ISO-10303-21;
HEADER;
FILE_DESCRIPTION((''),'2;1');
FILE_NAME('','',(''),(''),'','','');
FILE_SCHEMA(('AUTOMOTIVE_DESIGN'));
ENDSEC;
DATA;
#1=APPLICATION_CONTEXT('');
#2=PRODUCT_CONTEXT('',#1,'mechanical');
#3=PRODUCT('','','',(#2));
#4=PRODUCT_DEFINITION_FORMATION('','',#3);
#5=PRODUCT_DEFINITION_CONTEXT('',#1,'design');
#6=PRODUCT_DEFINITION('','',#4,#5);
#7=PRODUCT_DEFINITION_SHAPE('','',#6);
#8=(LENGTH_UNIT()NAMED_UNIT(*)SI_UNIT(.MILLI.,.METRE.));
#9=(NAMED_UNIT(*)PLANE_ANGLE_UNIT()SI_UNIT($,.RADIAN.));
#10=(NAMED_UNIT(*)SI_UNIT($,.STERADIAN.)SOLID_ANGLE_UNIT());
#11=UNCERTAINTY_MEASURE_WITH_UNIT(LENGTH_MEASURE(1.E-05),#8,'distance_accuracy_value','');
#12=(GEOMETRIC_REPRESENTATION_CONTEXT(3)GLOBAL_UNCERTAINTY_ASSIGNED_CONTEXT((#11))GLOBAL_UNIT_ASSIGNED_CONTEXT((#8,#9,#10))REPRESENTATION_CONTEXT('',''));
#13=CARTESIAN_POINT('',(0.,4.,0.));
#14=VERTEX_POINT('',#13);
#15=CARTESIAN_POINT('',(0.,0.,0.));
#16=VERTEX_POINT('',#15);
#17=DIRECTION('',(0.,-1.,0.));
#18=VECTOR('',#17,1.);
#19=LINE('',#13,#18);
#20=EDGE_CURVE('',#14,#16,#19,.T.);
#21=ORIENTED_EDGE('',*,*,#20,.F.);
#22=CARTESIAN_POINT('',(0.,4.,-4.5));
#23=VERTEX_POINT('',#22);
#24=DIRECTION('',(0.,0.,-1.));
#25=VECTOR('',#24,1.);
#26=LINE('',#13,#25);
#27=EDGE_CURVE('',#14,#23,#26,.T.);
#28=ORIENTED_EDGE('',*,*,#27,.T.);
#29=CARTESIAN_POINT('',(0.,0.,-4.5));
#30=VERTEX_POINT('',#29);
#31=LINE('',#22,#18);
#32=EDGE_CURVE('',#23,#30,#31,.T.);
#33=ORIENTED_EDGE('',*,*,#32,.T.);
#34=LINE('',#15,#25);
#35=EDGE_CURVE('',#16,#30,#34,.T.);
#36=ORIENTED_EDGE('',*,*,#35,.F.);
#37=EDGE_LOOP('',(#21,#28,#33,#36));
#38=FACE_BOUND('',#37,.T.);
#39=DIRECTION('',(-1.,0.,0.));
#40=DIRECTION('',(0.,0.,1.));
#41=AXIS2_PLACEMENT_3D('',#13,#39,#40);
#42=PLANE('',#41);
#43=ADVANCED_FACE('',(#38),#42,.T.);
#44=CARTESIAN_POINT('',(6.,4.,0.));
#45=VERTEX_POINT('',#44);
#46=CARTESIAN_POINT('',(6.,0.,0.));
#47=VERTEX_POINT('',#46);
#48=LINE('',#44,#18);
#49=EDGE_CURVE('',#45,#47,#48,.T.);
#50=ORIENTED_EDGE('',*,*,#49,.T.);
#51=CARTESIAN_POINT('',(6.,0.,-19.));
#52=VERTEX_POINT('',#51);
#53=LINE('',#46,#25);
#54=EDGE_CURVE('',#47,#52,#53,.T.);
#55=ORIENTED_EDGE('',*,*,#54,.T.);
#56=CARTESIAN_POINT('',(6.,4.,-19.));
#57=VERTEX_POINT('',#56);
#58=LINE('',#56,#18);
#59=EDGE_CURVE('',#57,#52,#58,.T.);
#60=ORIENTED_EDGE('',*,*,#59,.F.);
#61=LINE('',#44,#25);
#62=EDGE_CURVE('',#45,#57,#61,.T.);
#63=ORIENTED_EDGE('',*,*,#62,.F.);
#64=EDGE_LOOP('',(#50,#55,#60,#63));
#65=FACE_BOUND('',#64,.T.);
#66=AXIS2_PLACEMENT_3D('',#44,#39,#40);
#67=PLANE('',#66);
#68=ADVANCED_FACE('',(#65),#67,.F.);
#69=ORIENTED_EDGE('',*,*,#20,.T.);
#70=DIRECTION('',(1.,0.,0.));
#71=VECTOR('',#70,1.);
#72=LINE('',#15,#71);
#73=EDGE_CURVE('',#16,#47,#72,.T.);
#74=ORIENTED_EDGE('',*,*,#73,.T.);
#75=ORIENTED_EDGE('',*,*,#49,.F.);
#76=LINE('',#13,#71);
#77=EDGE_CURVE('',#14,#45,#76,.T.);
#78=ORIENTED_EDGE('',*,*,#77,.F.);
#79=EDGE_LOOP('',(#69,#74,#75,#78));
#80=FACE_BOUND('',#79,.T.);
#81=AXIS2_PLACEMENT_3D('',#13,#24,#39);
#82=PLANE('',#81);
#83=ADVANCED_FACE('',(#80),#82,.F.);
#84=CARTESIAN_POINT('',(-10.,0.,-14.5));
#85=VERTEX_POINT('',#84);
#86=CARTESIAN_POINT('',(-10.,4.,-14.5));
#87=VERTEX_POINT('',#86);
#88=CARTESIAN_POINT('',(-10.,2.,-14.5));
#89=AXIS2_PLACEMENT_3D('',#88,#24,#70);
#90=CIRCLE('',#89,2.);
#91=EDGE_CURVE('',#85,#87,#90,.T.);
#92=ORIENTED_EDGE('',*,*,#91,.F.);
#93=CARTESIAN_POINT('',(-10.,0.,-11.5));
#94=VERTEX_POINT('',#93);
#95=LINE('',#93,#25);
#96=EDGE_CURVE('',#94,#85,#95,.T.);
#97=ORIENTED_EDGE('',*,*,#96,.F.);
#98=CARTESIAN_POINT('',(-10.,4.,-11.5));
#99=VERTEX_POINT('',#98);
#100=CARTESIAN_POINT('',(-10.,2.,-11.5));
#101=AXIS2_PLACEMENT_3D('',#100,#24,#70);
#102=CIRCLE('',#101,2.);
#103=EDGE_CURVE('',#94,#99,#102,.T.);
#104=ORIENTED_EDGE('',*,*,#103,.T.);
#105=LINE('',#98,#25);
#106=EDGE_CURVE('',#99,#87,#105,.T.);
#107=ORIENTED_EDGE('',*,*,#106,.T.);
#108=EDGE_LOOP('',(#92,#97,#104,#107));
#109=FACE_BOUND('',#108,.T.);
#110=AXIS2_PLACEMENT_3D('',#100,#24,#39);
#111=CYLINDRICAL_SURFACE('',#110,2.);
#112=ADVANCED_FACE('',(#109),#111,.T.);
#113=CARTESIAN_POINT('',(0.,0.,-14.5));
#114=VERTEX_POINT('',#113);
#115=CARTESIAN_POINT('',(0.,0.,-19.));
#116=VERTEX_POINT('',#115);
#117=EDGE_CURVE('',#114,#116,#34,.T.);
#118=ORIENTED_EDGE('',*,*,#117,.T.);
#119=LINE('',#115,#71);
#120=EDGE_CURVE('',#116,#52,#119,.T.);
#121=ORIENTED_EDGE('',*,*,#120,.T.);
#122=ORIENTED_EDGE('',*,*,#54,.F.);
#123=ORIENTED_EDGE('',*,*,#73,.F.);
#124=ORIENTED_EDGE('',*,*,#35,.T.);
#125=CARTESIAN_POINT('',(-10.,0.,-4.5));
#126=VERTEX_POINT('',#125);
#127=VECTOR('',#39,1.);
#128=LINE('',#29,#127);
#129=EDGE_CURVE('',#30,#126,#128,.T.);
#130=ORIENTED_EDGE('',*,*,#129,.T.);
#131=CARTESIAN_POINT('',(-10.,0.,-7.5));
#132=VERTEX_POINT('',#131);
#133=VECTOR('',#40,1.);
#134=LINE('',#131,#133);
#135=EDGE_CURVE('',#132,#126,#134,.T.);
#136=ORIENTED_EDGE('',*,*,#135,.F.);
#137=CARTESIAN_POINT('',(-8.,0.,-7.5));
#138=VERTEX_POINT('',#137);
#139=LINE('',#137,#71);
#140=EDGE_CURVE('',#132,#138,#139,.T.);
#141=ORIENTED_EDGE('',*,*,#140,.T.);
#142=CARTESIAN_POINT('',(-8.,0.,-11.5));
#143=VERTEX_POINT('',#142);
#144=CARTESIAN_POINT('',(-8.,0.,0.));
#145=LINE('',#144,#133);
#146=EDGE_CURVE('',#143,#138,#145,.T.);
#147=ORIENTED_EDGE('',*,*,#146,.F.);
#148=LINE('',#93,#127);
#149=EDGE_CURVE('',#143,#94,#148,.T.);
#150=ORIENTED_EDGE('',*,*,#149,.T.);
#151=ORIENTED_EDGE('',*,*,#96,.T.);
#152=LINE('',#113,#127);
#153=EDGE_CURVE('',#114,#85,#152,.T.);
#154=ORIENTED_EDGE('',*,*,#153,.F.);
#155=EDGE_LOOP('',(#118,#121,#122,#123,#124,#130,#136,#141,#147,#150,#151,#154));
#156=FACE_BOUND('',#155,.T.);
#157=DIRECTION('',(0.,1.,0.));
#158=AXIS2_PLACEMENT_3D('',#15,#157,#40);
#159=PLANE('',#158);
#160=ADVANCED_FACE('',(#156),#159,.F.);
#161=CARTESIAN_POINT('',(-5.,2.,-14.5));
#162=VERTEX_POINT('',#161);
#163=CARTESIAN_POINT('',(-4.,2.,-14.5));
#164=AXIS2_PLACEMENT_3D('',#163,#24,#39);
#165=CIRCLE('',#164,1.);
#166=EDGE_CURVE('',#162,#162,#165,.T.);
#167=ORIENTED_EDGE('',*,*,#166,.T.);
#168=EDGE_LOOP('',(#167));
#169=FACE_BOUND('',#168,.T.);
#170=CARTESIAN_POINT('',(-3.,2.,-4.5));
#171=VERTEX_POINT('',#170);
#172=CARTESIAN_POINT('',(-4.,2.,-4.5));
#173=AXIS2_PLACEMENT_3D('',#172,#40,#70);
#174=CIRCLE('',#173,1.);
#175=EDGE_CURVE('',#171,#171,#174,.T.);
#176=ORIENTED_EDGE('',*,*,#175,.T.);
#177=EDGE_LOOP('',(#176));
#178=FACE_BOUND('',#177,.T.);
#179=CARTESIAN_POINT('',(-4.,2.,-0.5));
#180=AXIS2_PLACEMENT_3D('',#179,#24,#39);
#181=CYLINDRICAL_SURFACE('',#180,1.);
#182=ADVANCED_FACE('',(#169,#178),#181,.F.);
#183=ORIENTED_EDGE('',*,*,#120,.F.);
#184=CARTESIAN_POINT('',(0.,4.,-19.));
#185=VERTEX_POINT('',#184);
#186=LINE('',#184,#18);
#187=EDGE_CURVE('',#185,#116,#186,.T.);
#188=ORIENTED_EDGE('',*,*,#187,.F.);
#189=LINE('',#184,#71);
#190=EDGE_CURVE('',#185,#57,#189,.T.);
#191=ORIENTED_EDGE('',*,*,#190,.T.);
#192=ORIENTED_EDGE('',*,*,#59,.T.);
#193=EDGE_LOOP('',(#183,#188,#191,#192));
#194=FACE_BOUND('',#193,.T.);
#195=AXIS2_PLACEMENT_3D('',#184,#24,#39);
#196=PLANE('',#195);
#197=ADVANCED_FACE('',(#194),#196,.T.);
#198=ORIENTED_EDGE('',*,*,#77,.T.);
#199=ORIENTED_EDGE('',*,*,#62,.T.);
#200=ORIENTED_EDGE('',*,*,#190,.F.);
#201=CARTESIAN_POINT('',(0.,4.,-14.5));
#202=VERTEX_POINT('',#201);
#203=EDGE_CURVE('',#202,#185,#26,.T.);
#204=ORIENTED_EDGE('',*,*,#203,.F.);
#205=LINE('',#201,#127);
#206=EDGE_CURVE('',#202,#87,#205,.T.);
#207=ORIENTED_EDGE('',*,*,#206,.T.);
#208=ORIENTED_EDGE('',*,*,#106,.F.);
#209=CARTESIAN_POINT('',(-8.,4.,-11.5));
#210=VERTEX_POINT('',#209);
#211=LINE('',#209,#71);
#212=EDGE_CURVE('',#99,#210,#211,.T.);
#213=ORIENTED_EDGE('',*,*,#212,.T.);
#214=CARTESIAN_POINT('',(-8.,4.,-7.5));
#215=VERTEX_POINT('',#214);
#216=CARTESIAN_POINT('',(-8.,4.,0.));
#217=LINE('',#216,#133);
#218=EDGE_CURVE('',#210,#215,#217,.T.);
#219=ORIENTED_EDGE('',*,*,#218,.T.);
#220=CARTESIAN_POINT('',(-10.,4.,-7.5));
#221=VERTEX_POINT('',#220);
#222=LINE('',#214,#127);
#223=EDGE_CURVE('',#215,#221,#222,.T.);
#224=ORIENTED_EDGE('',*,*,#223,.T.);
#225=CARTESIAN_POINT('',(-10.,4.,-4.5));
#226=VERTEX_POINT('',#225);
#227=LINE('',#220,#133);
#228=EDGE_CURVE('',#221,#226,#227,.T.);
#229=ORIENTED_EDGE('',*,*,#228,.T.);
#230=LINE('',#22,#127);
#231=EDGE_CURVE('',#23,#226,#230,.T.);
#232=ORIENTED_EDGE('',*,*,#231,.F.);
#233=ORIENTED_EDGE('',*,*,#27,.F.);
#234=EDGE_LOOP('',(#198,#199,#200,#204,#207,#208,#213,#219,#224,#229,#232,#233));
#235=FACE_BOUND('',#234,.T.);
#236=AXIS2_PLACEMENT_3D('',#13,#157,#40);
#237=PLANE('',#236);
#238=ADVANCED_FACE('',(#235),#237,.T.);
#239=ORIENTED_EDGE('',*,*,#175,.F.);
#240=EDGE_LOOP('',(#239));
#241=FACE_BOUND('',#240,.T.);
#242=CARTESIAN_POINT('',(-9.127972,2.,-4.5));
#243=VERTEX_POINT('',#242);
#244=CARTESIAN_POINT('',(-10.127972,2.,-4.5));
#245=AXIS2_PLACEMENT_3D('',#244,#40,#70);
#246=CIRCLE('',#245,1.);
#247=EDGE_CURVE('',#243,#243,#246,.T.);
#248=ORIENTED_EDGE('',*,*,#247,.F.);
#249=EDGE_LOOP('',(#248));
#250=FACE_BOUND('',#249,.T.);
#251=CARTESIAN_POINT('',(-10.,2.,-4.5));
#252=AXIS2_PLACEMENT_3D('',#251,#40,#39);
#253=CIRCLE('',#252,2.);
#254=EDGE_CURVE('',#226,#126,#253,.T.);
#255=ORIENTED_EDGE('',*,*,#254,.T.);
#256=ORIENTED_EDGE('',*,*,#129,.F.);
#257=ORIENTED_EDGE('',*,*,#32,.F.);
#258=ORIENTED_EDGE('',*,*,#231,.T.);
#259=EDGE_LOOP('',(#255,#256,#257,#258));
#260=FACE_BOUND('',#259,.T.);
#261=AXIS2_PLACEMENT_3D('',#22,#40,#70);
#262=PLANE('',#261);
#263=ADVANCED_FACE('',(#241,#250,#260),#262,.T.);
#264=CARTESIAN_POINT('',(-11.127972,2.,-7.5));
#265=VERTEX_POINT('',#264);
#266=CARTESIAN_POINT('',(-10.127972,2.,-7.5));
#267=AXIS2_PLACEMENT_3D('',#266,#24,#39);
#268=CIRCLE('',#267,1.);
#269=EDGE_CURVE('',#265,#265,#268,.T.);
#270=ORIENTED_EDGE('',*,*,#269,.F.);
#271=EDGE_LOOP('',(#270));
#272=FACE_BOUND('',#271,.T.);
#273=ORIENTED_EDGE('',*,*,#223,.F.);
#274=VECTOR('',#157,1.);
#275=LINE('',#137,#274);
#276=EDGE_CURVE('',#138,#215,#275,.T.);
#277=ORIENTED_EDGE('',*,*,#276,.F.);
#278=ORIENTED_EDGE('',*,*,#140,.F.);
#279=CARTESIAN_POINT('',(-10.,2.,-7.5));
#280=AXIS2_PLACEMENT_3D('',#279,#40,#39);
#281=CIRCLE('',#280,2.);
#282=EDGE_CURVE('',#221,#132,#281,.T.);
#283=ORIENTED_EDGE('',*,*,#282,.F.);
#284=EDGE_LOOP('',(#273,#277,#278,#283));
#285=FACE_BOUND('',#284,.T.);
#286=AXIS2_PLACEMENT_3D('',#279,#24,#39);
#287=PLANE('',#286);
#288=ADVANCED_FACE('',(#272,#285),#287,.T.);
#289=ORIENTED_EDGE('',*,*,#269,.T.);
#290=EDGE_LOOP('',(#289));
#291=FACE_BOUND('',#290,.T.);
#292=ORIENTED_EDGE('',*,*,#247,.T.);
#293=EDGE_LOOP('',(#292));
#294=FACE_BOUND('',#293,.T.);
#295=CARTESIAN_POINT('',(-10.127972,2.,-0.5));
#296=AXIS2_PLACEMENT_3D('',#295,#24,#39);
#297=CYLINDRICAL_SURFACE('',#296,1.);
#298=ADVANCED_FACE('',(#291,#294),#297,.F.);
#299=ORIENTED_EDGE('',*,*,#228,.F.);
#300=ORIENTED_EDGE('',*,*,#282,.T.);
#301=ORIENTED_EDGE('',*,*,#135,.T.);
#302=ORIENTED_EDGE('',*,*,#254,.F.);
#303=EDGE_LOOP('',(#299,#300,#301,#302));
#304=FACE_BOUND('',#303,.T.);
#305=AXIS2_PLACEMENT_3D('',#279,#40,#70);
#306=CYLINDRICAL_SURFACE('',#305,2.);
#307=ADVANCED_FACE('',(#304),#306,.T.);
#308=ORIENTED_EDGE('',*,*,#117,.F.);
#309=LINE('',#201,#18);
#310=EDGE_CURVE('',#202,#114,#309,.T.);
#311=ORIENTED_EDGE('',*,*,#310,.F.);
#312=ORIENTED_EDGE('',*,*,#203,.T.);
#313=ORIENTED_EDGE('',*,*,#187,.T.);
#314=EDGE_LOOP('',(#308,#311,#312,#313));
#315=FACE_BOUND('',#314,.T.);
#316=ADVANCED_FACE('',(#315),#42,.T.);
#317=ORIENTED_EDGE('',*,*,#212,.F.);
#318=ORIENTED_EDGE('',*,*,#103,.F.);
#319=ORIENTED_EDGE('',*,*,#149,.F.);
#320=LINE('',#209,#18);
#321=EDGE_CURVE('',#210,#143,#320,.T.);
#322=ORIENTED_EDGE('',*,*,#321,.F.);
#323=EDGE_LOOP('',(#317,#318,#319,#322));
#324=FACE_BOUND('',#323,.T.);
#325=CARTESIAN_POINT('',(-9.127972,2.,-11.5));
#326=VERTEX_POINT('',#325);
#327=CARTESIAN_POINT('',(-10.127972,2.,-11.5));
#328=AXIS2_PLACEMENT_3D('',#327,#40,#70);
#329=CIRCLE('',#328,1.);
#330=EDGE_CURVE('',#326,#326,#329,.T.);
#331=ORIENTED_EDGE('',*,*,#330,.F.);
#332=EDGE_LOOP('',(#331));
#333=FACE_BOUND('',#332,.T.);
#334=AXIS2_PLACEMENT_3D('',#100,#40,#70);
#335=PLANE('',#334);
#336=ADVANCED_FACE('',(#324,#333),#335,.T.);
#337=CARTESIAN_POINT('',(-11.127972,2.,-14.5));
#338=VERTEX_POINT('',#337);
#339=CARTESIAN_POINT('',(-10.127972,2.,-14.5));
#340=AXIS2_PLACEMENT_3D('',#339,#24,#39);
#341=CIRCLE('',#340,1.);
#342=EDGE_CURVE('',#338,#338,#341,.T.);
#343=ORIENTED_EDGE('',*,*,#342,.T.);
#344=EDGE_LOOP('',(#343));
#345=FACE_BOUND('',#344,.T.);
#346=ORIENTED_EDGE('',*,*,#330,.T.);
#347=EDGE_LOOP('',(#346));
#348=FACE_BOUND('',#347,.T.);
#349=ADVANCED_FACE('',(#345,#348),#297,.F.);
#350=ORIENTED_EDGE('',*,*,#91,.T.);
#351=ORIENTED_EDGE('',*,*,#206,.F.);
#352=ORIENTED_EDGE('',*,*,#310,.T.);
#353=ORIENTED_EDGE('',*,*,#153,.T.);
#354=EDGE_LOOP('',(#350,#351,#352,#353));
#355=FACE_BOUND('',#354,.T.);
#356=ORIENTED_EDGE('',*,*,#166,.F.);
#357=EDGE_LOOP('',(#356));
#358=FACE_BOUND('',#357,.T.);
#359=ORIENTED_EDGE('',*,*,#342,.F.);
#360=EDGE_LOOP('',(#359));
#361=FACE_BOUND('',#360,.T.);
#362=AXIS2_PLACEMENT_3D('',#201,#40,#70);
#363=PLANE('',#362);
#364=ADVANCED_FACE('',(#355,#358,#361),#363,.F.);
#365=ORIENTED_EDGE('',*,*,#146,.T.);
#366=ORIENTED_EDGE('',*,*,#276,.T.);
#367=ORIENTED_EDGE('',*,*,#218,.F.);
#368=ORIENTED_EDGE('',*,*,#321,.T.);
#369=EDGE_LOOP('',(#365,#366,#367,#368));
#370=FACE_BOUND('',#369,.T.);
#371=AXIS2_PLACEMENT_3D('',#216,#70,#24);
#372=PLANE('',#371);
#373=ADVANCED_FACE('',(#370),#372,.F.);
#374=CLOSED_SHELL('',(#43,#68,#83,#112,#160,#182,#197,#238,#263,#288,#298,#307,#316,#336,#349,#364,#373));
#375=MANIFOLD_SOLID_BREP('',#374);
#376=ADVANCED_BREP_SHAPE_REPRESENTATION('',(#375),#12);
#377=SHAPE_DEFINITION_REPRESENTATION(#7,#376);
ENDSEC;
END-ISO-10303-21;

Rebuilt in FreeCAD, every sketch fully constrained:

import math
import FreeCAD as App
import Part
import Sketcher

V = App.Vector


def add_polygon(sketch, points):
    """Adds a closed chain of lines whose ends are joined by coincident constraints."""
    first, n = sketch.GeometryCount, len(points)
    for a, b in zip(points, points[1:] + points[:1]):
        sketch.addGeometry(Part.LineSegment(App.Vector(*a, 0), App.Vector(*b, 0)), False)
    for i in range(n):
        sketch.addConstraint(Sketcher.Constraint("Coincident", first + i, 2, first + (i + 1) % n, 1))

doc = App.newDocument("Part")
params = doc.addObject("Spreadsheet::Sheet", "Params")
for row, (alias, value) in enumerate([
    ("sketch1_width", "6 mm"),
    ("sketch1_width2", "8 mm"),
    ("sketch1_height", "19 mm"),
    ("sketch1_height2", "10 mm"),
    ("pad1_length", "4 mm"),
    ("sketch2_radius", "2 mm"),
    ("sketch2_width", "2 mm"),
    ("pad2_length", "3 mm"),
    ("sketch3_radius", "2 mm"),
    ("sketch3_width", "2 mm"),
    ("pad3_length", "3 mm"),
    ("sketch4_diameter", "2 mm"),
    ("pocket1_length", "14 mm"),
    ("sketch5_diameter", "2 mm"),
    ("pocket2_length", "14 mm"),
], start=1):
    params.set(f"A{row}", alias)
    params.set(f"B{row}", "=" + value)
    params.setAlias(f"B{row}", alias)

body = doc.addObject("PartDesign::Body", "Body")

# Sketch on XZ plane
sketch1 = body.newObject("Sketcher::SketchObject", "Sketch")
sketch1.AttachmentSupport = (doc.getObject("XZ_Plane"), [""])
sketch1.MapMode = "FlatFace"
add_polygon(sketch1, [(0, -4.5), (0, 0), (6, 0), (6, -19), (0, -19), (0, -14.5), (-8, -14.5), (-8, -4.5)])  # lines 0-7
sketch1.addConstraint([
    Sketcher.Constraint("Vertical", 0),
    Sketcher.Constraint("Horizontal", 1),
    Sketcher.Constraint("Vertical", 2),
    Sketcher.Constraint("Horizontal", 3),
    Sketcher.Constraint("Vertical", 4),
    Sketcher.Constraint("Horizontal", 5),
    Sketcher.Constraint("Vertical", 6),
    Sketcher.Constraint("Horizontal", 7),
    Sketcher.Constraint("Coincident", 0, 2, -1, 1),
    Sketcher.Constraint("PointOnObject", 3, 2, -2),
    Sketcher.Constraint("Equal", 0, 4),
    Sketcher.Constraint("DistanceX", 1, 1, 1, 2, 6.0),
    Sketcher.Constraint("DistanceX", 5, 2, 5, 1, 8.0),
    Sketcher.Constraint("DistanceY", 2, 2, 2, 1, 19.0),
    Sketcher.Constraint("DistanceY", 6, 1, 6, 2, 10.0),
])
sketch1.setExpression("Constraints[19]", "Params.sketch1_width")
sketch1.setExpression("Constraints[20]", "Params.sketch1_width2")
sketch1.setExpression("Constraints[21]", "Params.sketch1_height")
sketch1.setExpression("Constraints[22]", "Params.sketch1_height2")
pad1 = body.newObject("PartDesign::Pad", "Pad")
pad1.Profile = sketch1
pad1.setExpression("Length", "Params.pad1_length")
pad1.Reversed = True

# Sketch on XY plane
sketch2 = body.newObject("Sketcher::SketchObject", "Sketch001")
sketch2.AttachmentSupport = (doc.getObject("XY_Plane"), [""])
sketch2.MapMode = "FlatFace"
sketch2.AttachmentOffset = App.Placement(V(0, 0, -4.5), App.Rotation())
sketch2.addGeometry([
    Part.LineSegment(V(-10, 0, 0), V(-8, 0, 0)),
    Part.LineSegment(V(-8, 0, 0), V(-8, 4, 0)),
    Part.LineSegment(V(-8, 4, 0), V(-10, 4, 0)),
    Part.ArcOfCircle(Part.Circle(V(-10, 2, 0), V(0, 0, 1), 2), math.radians(90), math.radians(270)),
], False)
sketch2.addConstraint([
    Sketcher.Constraint("Coincident", 0, 2, 1, 1),
    Sketcher.Constraint("Coincident", 1, 2, 2, 1),
    Sketcher.Constraint("Tangent", 2, 2, 3, 1),
    Sketcher.Constraint("Tangent", 3, 2, 0, 1),
    Sketcher.Constraint("Horizontal", 0),
    Sketcher.Constraint("Vertical", 1),
    Sketcher.Constraint("Horizontal", 2),
    Sketcher.Constraint("PointOnObject", 0, 2, -1),
    Sketcher.Constraint("Radius", 3, 2.0),
    Sketcher.Constraint("DistanceX", 0, 1, 0, 2, 2.0),
    Sketcher.Constraint("DistanceX", 3, 3, -1, 1, 10.0),
])
sketch2.setExpression("Constraints[8]", "Params.sketch2_radius")
sketch2.setExpression("Constraints[9]", "Params.sketch2_width")
pad2 = body.newObject("PartDesign::Pad", "Pad001")
pad2.Profile = sketch2
pad2.setExpression("Length", "Params.pad2_length")
pad2.Reversed = True

# Sketch on XY plane
sketch3 = body.newObject("Sketcher::SketchObject", "Sketch002")
sketch3.AttachmentSupport = (doc.getObject("XY_Plane"), [""])
sketch3.MapMode = "FlatFace"
sketch3.AttachmentOffset = App.Placement(V(0, 0, -11.5), App.Rotation())
sketch3.addGeometry([
    Part.LineSegment(V(-10, 4, 0), V(-8, 4, 0)),
    Part.LineSegment(V(-8, 4, 0), V(-8, 0, 0)),
    Part.LineSegment(V(-8, 0, 0), V(-10, 0, 0)),
    Part.ArcOfCircle(Part.Circle(V(-10, 2, 0), V(0, 0, 1), 2), math.radians(90), math.radians(270)),
], False)
sketch3.addConstraint([
    Sketcher.Constraint("Coincident", 0, 2, 1, 1),
    Sketcher.Constraint("Coincident", 1, 2, 2, 1),
    Sketcher.Constraint("Tangent", 2, 2, 3, 2),
    Sketcher.Constraint("Tangent", 3, 1, 0, 1),
    Sketcher.Constraint("Horizontal", 0),
    Sketcher.Constraint("Vertical", 1),
    Sketcher.Constraint("Horizontal", 2),
    Sketcher.Constraint("PointOnObject", 1, 2, -1),
    Sketcher.Constraint("Radius", 3, 2.0),
    Sketcher.Constraint("DistanceX", 0, 1, 0, 2, 2.0),
    Sketcher.Constraint("DistanceX", 3, 3, -1, 1, 10.0),
])
sketch3.setExpression("Constraints[8]", "Params.sketch3_radius")
sketch3.setExpression("Constraints[9]", "Params.sketch3_width")
pad3 = body.newObject("PartDesign::Pad", "Pad002")
pad3.Profile = sketch3
pad3.setExpression("Length", "Params.pad3_length")
pad3.Reversed = True

# Sketch on XY plane
sketch4 = body.newObject("Sketcher::SketchObject", "Sketch003")
sketch4.AttachmentSupport = (doc.getObject("XY_Plane"), [""])
sketch4.MapMode = "FlatFace"
sketch4.AttachmentOffset = App.Placement(V(0, 0, -14.5), App.Rotation())
sketch4.addGeometry(Part.Circle(V(-10.1, 2, 0), V(0, 0, 1), 1), False)
sketch4.addConstraint([
    Sketcher.Constraint("Diameter", 0, 2.0),
    Sketcher.Constraint("DistanceY", -1, 1, 0, 3, 2.0),
    Sketcher.Constraint("DistanceX", 0, 3, -1, 1, 10.127972),
])
sketch4.setExpression("Constraints[0]", "Params.sketch4_diameter")
pocket1 = body.newObject("PartDesign::Pocket", "Pocket")
pocket1.Profile = sketch4
pocket1.setExpression("Length", "Params.pocket1_length")
pocket1.Reversed = True

# Sketch on XY plane
sketch5 = body.newObject("Sketcher::SketchObject", "Sketch004")
sketch5.AttachmentSupport = (doc.getObject("XY_Plane"), [""])
sketch5.MapMode = "FlatFace"
sketch5.AttachmentOffset = App.Placement(V(0, 0, -14.5), App.Rotation())
sketch5.addGeometry(Part.Circle(V(-4, 2, 0), V(0, 0, 1), 1), False)
sketch5.addConstraint([
    Sketcher.Constraint("Diameter", 0, 2.0),
    Sketcher.Constraint("DistanceX", 0, 3, -1, 1, 4.0),
    Sketcher.Constraint("DistanceY", -1, 1, 0, 3, 2.0),
])
sketch5.setExpression("Constraints[0]", "Params.sketch5_diameter")
pocket2 = body.newObject("PartDesign::Pocket", "Pocket001")
pocket2.Profile = sketch5
pocket2.setExpression("Length", "Params.pocket2_length")
pocket2.Reversed = True

doc.recompute()
